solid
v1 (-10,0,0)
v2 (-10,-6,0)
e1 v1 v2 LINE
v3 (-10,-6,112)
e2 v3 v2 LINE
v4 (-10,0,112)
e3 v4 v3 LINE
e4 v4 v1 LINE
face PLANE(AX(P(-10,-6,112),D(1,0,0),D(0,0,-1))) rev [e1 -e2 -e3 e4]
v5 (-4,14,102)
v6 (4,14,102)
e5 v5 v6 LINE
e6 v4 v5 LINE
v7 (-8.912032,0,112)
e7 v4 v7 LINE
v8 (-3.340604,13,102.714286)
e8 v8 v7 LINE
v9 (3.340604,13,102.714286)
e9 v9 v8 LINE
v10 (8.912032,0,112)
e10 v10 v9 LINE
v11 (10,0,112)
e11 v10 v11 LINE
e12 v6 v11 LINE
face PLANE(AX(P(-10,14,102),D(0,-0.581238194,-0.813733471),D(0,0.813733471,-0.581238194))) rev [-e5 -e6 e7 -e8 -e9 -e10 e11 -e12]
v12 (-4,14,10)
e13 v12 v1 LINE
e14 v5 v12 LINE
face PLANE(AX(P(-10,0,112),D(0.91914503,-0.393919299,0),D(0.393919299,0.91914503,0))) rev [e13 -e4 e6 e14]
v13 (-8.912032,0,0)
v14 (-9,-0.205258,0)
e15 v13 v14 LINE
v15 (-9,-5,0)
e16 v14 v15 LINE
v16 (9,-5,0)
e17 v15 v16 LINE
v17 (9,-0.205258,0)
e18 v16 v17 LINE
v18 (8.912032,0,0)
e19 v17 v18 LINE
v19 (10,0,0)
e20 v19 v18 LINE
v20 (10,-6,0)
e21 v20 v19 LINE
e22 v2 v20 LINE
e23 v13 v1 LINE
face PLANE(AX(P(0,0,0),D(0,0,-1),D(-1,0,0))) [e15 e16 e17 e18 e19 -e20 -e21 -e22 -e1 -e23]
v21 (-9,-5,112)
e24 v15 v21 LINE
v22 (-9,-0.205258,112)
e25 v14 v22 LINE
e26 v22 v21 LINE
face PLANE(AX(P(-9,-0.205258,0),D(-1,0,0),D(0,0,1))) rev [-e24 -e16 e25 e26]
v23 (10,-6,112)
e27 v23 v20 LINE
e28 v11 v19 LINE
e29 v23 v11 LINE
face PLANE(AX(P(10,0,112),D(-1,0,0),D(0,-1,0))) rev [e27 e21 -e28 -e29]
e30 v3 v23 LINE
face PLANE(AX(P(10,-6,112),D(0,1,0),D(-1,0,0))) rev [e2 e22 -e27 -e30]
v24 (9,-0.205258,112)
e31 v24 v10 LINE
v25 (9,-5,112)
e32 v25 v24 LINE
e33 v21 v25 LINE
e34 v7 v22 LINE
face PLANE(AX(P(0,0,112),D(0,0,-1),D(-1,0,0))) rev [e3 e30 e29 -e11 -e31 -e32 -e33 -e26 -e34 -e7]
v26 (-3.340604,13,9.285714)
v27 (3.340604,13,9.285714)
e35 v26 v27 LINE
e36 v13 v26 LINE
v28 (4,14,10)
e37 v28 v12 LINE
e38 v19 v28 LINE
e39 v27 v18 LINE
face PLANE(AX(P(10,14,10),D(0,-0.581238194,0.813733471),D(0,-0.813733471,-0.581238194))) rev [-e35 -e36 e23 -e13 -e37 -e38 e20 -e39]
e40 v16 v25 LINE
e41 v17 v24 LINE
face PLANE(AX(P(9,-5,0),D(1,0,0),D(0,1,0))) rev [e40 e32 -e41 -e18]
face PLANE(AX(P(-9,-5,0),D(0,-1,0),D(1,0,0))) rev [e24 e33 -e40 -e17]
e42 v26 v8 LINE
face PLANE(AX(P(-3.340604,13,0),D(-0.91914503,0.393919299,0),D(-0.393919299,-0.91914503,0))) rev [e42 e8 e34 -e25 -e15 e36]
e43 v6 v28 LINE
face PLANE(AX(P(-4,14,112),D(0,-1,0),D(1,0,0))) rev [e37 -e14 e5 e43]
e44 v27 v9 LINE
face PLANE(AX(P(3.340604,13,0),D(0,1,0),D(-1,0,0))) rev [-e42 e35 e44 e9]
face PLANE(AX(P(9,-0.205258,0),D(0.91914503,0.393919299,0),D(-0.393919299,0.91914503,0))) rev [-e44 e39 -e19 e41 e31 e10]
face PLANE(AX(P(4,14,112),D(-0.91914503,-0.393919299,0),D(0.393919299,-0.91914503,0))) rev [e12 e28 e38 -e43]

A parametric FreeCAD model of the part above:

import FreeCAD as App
import Part
import Sketcher

V = App.Vector
Q = App.Units.Quantity


def add_polygon(sketch, points):
    """Adds a closed chain of lines whose ends are joined by coincident constraints."""
    first, n = sketch.GeometryCount, len(points)
    for a, b in zip(points, points[1:] + points[:1]):
        sketch.addGeometry(Part.LineSegment(App.Vector(*a, 0), App.Vector(*b, 0)), False)
    for i in range(n):
        sketch.addConstraint(Sketcher.Constraint("Coincident", first + i, 2, first + (i + 1) % n, 1))

doc = App.newDocument("Part")
body = doc.addObject("PartDesign::Body", "Body")

sketch1 = body.newObject("Sketcher::SketchObject", "Sketch")
sketch1.AttachmentSupport = (doc.getObject("XY_Plane"), [""])
sketch1.MapMode = "FlatFace"
add_polygon(sketch1, [(4, 14), (-4, 14), (-10, 0), (-10, -6), (10, -6), (10, 0)])
sketch1.addConstraint([
    Sketcher.Constraint("Horizontal", 0),
    Sketcher.Constraint("Vertical", 2),
    Sketcher.Constraint("Horizontal", 3),
    Sketcher.Constraint("Vertical", 4),
    Sketcher.Constraint("Symmetric", 1, 2, 4, 2, -1, 1),
    Sketcher.Constraint("PointOnObject", 1, 2, -1),
    Sketcher.Constraint("Equal", 1, 5),
    Sketcher.Constraint("DistanceX", 0, 2, 0, 1, Q("8 mm")),
    Sketcher.Constraint("DistanceX", 3, 1, 3, 2, Q("20 mm")),
    Sketcher.Constraint("DistanceY", 2, 2, 2, 1, Q("6 mm")),
    Sketcher.Constraint("DistanceY", -1, 1, 0, 2, Q("14 mm")),
])
pad1 = body.newObject("PartDesign::Pad", "Pad")
pad1.Profile = sketch1
pad1.Length = 112

sketch2 = body.newObject("Sketcher::SketchObject", "Sketch001")
sketch2.AttachmentSupport = (doc.getObject("XY_Plane"), [""])
sketch2.MapMode = "FlatFace"
sketch2.AttachmentOffset = App.Placement(V(0, 0, 112), App.Rotation())
add_polygon(sketch2, [(-3.3, 13), (-9, -0.2), (-9, -5), (9, -5), (9, -0.2), (3.3, 13)])
sketch2.addConstraint([
    Sketcher.Constraint("Vertical", 1),
    Sketcher.Constraint("Horizontal", 2),
    Sketcher.Constraint("Vertical", 3),
    Sketcher.Constraint("Horizontal", 5),
    Sketcher.Constraint("Symmetric", 0, 2, 3, 2, -2),
    Sketcher.Constraint("Equal", 0, 4),
    Sketcher.Constraint("DistanceX", 2, 1, 2, 2, Q("18 mm")),
    Sketcher.Constraint("DistanceY", 1, 2, -1, 1, Q("5 mm")),
    Sketcher.Constraint("DistanceY", -1, 1, 4, 2, Q("13 mm")),
    Sketcher.Constraint("DistanceX", 5, 2, 5, 1, Q("6.681208 mm")),
    Sketcher.Constraint("DistanceY", 1, 2, 1, 1, Q("4.794742 mm")),
])
pocket1 = body.newObject("PartDesign::Pocket", "Pocket")
pocket1.Profile = sketch2
pocket1.Type = "ThroughAll"

sketch3 = body.newObject("Sketcher::SketchObject", "Sketch002")
sketch3.AttachmentSupport = (doc.getObject("YZ_Plane"), [""])
sketch3.MapMode = "FlatFace"
sketch3.AttachmentOffset = App.Placement(V(0, 0, 10), App.Rotation())
add_polygon(sketch3, [(14, 102), (14, 112), (0, 112)])
sketch3.addConstraint([
    Sketcher.Constraint("Vertical", 0),
    Sketcher.Constraint("Horizontal", 1),
    Sketcher.Constraint("PointOnObject", 1, 2, -2),
    Sketcher.Constraint("DistanceX", 1, 2, 1, 1, Q("14 mm")),
    Sketcher.Constraint("DistanceY", 0, 1, 0, 2, Q("10 mm")),
    Sketcher.Constraint("DistanceY", -1, 1, 0, 2, Q("112 mm")),
])
pocket2 = body.newObject("PartDesign::Pocket", "Pocket001")
pocket2.Profile = sketch3
pocket2.Type = "ThroughAll"

sketch4 = body.newObject("Sketcher::SketchObject", "Sketch003")
sketch4.AttachmentSupport = (doc.getObject("YZ_Plane"), [""])
sketch4.MapMode = "FlatFace"
sketch4.AttachmentOffset = App.Placement(V(0, 0, -10), App.Rotation())
add_polygon(sketch4, [(14, 10), (14, 0), (0, 0)])
sketch4.addConstraint([
    Sketcher.Constraint("Vertical", 0),
    Sketcher.Constraint("Horizontal", 1),
    Sketcher.Constraint("Coincident", 1, 2, -1, 1),
    Sketcher.Constraint("DistanceX", 1, 2, 1, 1, Q("14 mm")),
    Sketcher.Constraint("DistanceY", 0, 2, 0, 1, Q("10 mm")),
])
pocket3 = body.newObject("PartDesign::Pocket", "Pocket002")
pocket3.Profile = sketch4
pocket3.Type = "ThroughAll"
pocket3.Reversed = True

doc.recompute()
